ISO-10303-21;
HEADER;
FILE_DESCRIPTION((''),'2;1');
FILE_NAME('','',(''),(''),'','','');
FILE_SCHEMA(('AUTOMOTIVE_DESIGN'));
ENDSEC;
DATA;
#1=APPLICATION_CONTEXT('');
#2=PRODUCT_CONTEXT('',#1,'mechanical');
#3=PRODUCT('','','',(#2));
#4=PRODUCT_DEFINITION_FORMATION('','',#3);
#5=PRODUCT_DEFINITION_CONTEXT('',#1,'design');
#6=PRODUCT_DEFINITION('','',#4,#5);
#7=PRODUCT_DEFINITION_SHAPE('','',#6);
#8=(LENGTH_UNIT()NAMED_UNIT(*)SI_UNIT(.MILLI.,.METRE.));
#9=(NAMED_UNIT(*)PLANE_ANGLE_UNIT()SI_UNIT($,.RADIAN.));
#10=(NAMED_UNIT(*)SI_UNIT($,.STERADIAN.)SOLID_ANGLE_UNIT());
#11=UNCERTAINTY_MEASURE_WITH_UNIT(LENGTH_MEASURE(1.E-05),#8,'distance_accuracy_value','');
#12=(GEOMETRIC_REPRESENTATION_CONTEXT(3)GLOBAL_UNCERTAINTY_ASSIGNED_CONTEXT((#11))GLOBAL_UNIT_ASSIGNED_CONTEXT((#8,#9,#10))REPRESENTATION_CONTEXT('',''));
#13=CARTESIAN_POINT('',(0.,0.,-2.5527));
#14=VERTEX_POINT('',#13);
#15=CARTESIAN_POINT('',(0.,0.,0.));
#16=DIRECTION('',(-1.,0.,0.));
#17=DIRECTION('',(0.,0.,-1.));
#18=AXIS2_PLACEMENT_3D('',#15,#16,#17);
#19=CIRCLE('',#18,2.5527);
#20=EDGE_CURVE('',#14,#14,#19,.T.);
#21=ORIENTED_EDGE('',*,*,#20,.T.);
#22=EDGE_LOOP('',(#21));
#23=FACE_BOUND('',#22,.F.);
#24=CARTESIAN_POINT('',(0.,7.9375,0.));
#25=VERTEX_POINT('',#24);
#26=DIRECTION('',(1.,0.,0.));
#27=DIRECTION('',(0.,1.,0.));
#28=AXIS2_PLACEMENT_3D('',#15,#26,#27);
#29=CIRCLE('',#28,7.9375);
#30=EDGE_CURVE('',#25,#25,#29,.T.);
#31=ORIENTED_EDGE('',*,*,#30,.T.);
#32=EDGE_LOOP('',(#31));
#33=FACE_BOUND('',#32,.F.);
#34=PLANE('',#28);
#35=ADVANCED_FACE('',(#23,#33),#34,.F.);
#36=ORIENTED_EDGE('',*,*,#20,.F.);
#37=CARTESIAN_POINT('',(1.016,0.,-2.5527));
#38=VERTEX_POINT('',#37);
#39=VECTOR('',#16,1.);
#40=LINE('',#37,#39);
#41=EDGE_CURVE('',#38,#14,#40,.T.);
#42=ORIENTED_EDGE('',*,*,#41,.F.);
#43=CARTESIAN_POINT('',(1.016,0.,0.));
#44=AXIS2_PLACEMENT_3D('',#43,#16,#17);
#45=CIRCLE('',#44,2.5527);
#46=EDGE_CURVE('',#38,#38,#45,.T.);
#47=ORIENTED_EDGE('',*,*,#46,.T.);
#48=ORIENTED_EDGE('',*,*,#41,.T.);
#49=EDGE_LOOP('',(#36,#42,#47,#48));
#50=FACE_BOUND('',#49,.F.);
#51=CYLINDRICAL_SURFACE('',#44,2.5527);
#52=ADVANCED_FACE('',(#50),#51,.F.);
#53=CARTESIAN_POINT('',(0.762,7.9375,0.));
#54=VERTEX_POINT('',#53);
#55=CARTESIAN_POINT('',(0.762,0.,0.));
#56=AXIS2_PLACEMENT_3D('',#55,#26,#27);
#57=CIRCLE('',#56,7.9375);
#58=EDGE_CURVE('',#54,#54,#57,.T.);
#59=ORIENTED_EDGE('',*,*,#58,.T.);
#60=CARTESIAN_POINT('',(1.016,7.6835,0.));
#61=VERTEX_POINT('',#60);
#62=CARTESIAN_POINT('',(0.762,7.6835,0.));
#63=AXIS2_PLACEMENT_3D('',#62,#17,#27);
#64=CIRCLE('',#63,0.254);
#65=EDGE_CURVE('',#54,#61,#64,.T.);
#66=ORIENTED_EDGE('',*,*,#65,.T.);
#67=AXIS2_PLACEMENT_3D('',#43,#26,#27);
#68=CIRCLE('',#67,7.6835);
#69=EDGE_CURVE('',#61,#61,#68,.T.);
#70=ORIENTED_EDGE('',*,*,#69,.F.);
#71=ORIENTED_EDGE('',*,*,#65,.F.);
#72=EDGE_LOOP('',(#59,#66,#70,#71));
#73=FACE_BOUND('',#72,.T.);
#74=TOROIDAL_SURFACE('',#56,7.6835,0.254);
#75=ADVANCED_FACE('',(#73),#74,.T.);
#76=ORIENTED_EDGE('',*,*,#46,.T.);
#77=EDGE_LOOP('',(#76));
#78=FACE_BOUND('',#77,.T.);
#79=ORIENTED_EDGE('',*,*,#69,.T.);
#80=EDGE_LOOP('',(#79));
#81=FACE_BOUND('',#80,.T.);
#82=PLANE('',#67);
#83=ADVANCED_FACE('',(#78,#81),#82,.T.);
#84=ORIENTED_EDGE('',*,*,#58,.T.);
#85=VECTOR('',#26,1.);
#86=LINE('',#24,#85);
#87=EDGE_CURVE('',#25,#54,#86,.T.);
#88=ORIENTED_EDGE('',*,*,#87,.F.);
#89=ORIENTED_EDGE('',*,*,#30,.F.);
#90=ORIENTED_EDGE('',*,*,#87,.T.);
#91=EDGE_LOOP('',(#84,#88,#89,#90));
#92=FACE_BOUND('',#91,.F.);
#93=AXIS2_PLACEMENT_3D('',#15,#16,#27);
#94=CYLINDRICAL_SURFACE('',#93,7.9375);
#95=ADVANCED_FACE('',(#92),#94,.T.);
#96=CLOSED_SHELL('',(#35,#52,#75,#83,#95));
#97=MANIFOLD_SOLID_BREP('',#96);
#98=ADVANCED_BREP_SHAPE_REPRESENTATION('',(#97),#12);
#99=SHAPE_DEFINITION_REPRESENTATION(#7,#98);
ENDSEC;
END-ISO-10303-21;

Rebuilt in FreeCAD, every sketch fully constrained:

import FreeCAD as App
import Part
import Sketcher

V = App.Vector
Q = App.Units.Quantity


def edges_at(feature, points):
    """Names of the edges that pass closest to the given points."""
    edges = feature.Shape.Edges
    near = lambda p: min(range(len(edges)), key=lambda i: edges[i].distToShape(Part.Vertex(*p))[0])
    return sorted({f"Edge{near(p) + 1}" for p in points})

doc = App.newDocument("Part")
body = doc.addObject("PartDesign::Body", "Body")

sketch1 = doc.addObject("Sketcher::SketchObject", "Sketch")
body.addObject(sketch1)
sketch1.AttachmentSupport = (doc.YZ_Plane, [""])
sketch1.MapMode = "FlatFace"
sketch1.addGeometry(Part.Circle(V(0, 0, 0), V(0, 0, 1), 8), False)
sketch1.addConstraint(Sketcher.Constraint("Coincident", 0, 3, -1, 1))
sketch1.addConstraint(Sketcher.Constraint("Diameter", 0, Q("0.625 in")))
pad1 = doc.addObject("PartDesign::Pad", "Pad")
body.addObject(pad1)
pad1.Profile = sketch1
pad1.Length = Q("0.04 in")

sketch2 = doc.addObject("Sketcher::SketchObject", "Sketch001")
body.addObject(sketch2)
sketch2.AttachmentSupport = (doc.YZ_Plane, [""])
sketch2.MapMode = "FlatFace"
sketch2.AttachmentOffset = App.Placement(V(0, 0, 0.04 * 25.4), App.Rotation())
sketch2.addGeometry(Part.Circle(V(0, 0, 0), V(0, 0, 1), 2.6), False)
sketch2.addConstraint(Sketcher.Constraint("Coincident", 0, 3, -1, 1))
sketch2.addConstraint(Sketcher.Constraint("Diameter", 0, Q("0.201 in")))
doc.recompute()
hole = doc.addObject("PartDesign::Hole", "Hole")
body.addObject(hole)
hole.Profile = sketch2
hole.ThreadType = "None"
hole.Diameter = Q("0.201 in")
hole.DepthType = "ThroughAll"
doc.recompute()

fillet = doc.addObject("PartDesign::Fillet", "Fillet")
body.addObject(fillet)
fillet.Base = (hole, edges_at(hole, [(1.016, -7.938, 0)]))
fillet.Radius = Q("0.01 in")

doc.recompute()
